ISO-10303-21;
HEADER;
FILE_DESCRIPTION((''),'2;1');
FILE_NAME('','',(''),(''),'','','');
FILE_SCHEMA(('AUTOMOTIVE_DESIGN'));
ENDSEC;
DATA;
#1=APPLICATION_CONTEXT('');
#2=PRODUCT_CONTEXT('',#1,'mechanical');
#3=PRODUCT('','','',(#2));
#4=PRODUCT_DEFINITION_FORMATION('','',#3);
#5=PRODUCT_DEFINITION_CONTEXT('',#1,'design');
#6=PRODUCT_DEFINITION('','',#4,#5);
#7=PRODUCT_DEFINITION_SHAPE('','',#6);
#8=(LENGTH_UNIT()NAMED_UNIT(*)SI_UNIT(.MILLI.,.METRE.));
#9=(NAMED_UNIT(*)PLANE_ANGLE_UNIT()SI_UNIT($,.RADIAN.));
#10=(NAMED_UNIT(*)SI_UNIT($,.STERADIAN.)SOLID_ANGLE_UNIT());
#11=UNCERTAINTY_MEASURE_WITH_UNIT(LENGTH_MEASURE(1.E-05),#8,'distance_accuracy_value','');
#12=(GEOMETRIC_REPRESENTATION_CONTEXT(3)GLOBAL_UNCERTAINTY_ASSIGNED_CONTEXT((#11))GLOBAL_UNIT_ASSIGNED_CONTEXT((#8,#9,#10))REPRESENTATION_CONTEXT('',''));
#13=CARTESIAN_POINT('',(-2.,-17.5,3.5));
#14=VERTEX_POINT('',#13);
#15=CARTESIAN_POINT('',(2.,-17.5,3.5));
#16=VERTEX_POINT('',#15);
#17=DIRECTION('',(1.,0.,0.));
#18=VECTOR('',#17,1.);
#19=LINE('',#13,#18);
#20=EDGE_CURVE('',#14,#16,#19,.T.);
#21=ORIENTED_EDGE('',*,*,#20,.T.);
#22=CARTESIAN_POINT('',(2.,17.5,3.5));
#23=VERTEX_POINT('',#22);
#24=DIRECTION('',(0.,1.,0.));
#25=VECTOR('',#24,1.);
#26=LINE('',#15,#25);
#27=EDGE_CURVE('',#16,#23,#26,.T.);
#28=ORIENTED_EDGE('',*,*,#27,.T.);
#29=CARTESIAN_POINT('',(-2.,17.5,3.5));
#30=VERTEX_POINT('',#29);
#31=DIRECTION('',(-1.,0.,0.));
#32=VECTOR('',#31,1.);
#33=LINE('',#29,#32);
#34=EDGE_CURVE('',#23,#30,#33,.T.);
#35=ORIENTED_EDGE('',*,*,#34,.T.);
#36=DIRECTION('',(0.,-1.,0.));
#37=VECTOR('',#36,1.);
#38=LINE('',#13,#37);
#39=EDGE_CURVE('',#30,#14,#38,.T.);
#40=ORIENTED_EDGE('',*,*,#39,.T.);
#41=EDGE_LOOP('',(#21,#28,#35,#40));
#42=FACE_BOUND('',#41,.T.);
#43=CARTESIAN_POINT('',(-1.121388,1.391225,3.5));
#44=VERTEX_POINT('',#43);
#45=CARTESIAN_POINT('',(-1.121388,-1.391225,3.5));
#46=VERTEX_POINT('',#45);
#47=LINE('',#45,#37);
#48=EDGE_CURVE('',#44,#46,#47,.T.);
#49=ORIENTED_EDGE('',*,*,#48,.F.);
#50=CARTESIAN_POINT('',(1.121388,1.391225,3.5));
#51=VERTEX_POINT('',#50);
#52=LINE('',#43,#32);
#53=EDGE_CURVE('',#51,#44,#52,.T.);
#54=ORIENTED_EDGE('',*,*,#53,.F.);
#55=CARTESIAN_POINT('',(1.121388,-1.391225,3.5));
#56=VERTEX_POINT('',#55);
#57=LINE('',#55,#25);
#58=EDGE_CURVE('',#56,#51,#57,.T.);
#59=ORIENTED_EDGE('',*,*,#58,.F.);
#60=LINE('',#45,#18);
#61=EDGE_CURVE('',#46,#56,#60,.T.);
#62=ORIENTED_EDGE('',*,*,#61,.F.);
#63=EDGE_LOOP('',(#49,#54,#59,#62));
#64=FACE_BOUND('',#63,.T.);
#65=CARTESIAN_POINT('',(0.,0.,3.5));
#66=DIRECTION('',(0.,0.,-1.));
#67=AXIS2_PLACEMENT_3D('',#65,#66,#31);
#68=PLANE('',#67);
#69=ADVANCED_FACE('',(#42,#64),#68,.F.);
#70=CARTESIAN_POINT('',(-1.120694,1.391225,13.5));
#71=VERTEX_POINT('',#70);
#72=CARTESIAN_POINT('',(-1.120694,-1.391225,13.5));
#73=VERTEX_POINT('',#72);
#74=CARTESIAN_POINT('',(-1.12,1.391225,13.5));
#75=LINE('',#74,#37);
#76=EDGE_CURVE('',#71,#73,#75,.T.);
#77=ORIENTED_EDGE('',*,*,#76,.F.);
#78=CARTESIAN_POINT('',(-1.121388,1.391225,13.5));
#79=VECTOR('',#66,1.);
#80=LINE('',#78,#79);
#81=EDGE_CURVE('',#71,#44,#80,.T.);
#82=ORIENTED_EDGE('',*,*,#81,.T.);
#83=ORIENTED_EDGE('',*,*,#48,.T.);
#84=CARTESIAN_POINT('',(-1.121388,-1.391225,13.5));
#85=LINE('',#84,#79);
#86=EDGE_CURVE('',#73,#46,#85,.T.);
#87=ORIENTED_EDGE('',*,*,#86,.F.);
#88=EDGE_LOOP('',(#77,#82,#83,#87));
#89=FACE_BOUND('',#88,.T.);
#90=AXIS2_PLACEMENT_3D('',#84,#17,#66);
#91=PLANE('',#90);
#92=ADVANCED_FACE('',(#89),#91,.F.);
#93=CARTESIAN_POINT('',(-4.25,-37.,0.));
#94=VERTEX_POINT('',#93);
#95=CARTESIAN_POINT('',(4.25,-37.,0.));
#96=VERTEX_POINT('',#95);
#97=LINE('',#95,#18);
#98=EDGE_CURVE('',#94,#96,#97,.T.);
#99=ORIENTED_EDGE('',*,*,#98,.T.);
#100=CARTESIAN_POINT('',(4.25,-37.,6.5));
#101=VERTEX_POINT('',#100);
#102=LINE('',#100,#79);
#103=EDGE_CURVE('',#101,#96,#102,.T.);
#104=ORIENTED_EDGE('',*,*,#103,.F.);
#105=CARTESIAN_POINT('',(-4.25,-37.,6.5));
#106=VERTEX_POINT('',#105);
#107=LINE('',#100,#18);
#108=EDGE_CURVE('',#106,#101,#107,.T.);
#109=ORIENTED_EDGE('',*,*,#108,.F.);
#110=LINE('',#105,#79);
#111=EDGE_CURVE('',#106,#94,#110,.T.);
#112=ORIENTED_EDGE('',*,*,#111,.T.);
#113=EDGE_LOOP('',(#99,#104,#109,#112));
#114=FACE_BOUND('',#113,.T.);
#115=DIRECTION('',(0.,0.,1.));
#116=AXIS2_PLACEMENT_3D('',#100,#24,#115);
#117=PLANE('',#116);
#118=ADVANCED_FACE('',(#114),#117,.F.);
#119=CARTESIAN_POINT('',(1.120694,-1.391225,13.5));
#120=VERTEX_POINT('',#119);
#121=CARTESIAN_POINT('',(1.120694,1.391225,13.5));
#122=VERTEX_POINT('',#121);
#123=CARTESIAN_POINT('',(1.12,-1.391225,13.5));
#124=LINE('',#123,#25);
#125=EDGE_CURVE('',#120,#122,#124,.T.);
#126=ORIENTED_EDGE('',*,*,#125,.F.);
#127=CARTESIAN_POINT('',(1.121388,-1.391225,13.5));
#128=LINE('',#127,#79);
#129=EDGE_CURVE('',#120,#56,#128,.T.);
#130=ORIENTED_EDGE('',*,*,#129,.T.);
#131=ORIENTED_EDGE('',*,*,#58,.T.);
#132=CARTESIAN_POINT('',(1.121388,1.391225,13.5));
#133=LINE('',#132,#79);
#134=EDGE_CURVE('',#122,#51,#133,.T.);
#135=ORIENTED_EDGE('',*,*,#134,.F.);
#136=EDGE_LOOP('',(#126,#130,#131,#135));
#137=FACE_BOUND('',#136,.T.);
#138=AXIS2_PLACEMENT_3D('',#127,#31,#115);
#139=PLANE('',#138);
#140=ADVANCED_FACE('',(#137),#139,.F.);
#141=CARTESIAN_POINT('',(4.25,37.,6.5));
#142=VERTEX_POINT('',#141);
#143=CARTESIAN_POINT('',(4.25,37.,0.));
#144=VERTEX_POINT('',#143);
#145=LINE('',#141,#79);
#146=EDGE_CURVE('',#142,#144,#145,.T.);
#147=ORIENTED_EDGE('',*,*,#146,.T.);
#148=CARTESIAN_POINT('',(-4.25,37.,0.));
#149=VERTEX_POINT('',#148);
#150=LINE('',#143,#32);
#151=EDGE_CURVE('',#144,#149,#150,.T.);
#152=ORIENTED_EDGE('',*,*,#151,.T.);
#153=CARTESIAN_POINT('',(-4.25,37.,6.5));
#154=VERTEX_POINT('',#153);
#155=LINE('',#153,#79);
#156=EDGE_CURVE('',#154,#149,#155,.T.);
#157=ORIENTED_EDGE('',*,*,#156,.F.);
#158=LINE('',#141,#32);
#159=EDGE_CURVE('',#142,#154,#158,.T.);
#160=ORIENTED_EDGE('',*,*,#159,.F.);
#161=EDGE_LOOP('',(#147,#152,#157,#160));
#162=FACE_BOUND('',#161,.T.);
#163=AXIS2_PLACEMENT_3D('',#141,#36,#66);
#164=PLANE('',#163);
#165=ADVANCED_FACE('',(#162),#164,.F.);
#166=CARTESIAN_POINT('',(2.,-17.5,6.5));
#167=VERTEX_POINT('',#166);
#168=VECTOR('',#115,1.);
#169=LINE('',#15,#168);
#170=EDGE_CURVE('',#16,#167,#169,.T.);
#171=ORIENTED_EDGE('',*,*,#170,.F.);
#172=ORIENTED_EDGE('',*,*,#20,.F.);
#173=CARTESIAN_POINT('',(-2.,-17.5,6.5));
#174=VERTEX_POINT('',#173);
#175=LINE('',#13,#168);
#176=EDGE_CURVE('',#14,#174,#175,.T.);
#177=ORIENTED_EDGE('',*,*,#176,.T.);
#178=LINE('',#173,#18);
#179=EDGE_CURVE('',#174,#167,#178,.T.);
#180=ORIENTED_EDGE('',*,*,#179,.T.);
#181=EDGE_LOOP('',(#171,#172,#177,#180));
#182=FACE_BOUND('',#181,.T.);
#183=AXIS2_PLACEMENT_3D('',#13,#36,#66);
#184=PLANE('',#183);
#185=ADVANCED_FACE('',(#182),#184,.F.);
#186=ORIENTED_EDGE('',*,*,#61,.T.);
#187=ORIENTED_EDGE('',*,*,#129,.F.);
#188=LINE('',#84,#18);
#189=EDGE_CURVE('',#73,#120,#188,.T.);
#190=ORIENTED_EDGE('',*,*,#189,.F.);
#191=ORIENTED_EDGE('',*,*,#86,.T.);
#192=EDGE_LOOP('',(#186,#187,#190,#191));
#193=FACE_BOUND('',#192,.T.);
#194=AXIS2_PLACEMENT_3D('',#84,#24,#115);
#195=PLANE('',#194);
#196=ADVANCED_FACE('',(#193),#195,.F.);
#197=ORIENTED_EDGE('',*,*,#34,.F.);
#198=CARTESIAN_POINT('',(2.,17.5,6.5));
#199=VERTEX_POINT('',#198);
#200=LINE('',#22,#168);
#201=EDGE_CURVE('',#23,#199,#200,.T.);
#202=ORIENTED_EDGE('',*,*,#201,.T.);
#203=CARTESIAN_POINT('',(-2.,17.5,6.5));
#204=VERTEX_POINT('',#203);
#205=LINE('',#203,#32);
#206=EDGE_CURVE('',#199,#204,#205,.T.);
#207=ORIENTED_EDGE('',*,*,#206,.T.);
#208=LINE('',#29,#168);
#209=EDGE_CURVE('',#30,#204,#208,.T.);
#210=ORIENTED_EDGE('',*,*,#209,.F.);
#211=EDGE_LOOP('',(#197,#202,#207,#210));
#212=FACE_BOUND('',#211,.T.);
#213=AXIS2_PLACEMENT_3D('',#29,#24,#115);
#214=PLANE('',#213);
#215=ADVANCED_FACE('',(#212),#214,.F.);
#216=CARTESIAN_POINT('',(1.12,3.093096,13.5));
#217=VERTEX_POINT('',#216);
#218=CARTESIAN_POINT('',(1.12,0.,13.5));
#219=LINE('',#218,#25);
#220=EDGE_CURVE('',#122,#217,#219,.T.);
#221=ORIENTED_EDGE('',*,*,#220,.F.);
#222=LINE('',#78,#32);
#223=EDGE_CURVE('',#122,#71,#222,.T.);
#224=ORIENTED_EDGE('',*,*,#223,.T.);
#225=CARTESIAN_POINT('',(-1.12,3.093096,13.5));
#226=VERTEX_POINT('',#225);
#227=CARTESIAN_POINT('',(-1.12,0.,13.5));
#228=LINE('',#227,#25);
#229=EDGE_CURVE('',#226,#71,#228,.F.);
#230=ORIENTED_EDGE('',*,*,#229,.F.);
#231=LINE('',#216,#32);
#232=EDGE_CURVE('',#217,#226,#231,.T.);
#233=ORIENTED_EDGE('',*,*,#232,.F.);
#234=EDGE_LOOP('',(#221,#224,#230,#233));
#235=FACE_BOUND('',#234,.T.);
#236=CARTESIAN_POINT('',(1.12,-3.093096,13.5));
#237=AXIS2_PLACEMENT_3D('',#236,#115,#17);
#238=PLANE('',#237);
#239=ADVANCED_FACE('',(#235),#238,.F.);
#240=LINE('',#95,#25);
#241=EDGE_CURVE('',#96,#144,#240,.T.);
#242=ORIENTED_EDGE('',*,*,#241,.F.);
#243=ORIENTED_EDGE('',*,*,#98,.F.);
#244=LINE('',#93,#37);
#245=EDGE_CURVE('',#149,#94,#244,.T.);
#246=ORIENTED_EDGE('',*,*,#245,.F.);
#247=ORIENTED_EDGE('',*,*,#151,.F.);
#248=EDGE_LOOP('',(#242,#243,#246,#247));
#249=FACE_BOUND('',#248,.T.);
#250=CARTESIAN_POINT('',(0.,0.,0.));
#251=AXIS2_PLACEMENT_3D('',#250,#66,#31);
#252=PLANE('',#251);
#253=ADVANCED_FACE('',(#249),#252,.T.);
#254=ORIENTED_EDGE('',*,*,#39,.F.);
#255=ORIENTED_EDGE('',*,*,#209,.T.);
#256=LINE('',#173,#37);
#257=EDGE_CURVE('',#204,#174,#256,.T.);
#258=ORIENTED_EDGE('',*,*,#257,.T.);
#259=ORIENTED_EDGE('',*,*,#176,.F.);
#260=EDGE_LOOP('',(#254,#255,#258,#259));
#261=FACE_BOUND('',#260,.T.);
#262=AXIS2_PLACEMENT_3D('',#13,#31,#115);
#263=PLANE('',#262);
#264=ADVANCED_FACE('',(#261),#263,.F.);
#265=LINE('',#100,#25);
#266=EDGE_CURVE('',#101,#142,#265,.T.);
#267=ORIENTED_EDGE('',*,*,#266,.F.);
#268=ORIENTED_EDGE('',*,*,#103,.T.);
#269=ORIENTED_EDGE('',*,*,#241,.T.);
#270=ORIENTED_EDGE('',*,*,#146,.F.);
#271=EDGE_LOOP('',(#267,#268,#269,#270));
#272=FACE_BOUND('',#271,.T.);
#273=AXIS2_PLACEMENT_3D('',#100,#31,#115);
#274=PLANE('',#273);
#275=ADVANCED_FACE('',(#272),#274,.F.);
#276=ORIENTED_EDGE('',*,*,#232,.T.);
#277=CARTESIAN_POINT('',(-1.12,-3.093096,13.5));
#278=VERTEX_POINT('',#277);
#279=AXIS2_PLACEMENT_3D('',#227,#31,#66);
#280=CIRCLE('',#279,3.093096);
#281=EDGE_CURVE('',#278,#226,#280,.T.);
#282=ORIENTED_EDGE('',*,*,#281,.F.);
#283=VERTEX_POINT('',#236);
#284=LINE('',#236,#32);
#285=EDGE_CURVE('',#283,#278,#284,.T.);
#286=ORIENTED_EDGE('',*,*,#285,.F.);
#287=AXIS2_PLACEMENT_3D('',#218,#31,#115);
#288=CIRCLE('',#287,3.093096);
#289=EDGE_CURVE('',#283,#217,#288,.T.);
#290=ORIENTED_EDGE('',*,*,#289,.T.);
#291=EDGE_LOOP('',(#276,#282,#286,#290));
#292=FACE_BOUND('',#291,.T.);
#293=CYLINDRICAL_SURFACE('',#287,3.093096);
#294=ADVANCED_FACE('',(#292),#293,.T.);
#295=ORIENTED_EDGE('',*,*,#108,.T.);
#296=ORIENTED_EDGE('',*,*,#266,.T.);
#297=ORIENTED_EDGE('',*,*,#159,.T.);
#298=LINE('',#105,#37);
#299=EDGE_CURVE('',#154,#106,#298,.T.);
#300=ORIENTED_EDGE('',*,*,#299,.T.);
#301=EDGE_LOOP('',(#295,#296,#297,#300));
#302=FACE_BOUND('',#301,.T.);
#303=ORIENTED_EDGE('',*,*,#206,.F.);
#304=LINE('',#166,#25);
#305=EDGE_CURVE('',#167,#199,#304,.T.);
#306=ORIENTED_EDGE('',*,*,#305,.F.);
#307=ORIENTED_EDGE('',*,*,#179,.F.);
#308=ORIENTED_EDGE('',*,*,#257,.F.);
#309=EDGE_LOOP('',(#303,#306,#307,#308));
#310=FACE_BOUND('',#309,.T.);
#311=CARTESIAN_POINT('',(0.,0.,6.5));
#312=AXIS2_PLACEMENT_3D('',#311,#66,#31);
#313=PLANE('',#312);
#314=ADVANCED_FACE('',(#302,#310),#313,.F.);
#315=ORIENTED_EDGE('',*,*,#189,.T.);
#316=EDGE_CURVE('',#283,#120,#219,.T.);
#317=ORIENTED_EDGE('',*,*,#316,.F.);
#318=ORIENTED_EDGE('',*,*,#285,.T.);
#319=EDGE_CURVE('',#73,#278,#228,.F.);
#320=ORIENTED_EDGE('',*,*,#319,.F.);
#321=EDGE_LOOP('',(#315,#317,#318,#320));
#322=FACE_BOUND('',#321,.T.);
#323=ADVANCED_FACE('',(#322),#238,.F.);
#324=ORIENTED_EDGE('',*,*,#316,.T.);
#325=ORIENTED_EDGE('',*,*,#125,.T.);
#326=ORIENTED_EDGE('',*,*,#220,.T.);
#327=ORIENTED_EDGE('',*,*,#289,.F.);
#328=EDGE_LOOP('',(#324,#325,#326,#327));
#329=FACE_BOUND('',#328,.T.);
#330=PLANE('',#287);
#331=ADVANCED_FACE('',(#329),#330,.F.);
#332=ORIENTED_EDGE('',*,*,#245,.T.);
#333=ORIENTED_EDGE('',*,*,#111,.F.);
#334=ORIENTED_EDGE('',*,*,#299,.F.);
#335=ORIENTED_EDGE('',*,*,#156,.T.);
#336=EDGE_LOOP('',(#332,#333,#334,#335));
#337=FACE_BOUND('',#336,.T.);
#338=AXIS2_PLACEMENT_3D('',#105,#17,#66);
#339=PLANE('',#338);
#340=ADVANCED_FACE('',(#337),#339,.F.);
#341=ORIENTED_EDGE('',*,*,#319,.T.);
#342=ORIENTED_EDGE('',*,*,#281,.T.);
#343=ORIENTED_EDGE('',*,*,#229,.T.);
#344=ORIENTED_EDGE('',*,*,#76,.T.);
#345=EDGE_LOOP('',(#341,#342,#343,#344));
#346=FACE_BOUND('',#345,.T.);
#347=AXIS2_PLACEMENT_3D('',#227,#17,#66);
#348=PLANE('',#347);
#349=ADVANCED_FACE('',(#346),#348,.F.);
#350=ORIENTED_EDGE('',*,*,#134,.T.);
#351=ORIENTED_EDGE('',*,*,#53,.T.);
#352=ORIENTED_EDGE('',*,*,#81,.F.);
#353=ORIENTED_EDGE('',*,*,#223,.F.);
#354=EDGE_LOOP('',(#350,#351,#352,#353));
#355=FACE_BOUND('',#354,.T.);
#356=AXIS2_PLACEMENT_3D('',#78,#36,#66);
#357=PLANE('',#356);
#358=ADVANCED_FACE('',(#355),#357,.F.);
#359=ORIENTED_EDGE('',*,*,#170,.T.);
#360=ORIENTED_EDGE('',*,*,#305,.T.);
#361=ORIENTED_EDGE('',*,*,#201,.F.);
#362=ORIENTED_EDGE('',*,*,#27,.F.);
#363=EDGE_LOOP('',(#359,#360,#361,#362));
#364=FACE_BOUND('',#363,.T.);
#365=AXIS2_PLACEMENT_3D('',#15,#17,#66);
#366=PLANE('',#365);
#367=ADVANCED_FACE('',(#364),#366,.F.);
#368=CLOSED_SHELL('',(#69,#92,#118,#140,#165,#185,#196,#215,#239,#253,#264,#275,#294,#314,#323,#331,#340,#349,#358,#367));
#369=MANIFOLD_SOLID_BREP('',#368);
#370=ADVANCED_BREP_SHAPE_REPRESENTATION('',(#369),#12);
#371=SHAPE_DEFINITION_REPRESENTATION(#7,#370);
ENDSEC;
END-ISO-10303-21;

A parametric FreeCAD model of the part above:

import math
import FreeCAD as App
import Part
import Sketcher

doc = App.newDocument("Part")
body = doc.addObject("PartDesign::Body", "Body")

sketch1 = body.newObject("Sketcher::SketchObject", "Sketch")
sketch1.AttachmentSupport = (doc.getObject("XY_Plane"), [""])
sketch1.MapMode = "FlatFace"
sketch1.addGeometry([
    Part.LineSegment(App.Vector(-4, -37, 0), App.Vector(4, -37, 0)),
    Part.LineSegment(App.Vector(4, -37, 0), App.Vector(4, 37, 0)),
    Part.LineSegment(App.Vector(4, 37, 0), App.Vector(-4, 37, 0)),
    Part.LineSegment(App.Vector(-4, 37, 0), App.Vector(-4, -37, 0)),
], False)
sketch1.addConstraint([
    Sketcher.Constraint("Coincident", 0, 2, 1, 1),
    Sketcher.Constraint("Coincident", 1, 2, 2, 1),
    Sketcher.Constraint("Coincident", 2, 2, 3, 1),
    Sketcher.Constraint("Coincident", 3, 2, 0, 1),
    Sketcher.Constraint("Horizontal", 0),
    Sketcher.Constraint("Vertical", 1),
    Sketcher.Constraint("Horizontal", 2),
    Sketcher.Constraint("Vertical", 3),
    Sketcher.Constraint("Symmetric", 0, 2, 2, 2, -1, 1),
    Sketcher.Constraint("DistanceY", 1, 1, 1, 2, 74.0),
    Sketcher.Constraint("DistanceX", 0, 1, 0, 2, 8.5),
])
pad1 = body.newObject("PartDesign::Pad", "Pad")
pad1.Profile = sketch1
pad1.Length = 6.5

sketch2 = body.newObject("Sketcher::SketchObject", "Sketch001")
sketch2.AttachmentSupport = (doc.getObject("XY_Plane"), [""])
sketch2.MapMode = "FlatFace"
sketch2.AttachmentOffset = App.Placement(App.Vector(0, 0, 6.5), App.Rotation())
sketch2.addGeometry([
    Part.LineSegment(App.Vector(-2, 17.5, 0), App.Vector(-2, -17.5, 0)),
    Part.LineSegment(App.Vector(-2, -17.5, 0), App.Vector(2, -17.5, 0)),
    Part.LineSegment(App.Vector(2, -17.5, 0), App.Vector(2, 17.5, 0)),
    Part.LineSegment(App.Vector(2, 17.5, 0), App.Vector(-2, 17.5, 0)),
], False)
sketch2.addConstraint([
    Sketcher.Constraint("Coincident", 0, 2, 1, 1),
    Sketcher.Constraint("Coincident", 1, 2, 2, 1),
    Sketcher.Constraint("Coincident", 2, 2, 3, 1),
    Sketcher.Constraint("Coincident", 3, 2, 0, 1),
    Sketcher.Constraint("Vertical", 0),
    Sketcher.Constraint("Horizontal", 1),
    Sketcher.Constraint("Vertical", 2),
    Sketcher.Constraint("Horizontal", 3),
    Sketcher.Constraint("Symmetric", 0, 2, 2, 2, -1, 1),
    Sketcher.Constraint("DistanceX", 1, 1, 1, 2, 4.0),
    Sketcher.Constraint("DistanceY", 0, 2, 0, 1, 35.0),
])
pocket1 = body.newObject("PartDesign::Pocket", "Pocket")
pocket1.Profile = sketch2
pocket1.Length = 3

sketch3 = body.newObject("Sketcher::SketchObject", "Sketch002")
sketch3.AttachmentSupport = (doc.getObject("XY_Plane"), [""])
sketch3.MapMode = "FlatFace"
sketch3.AttachmentOffset = App.Placement(App.Vector(0, 0, 3.5), App.Rotation())
sketch3.addGeometry([
    Part.LineSegment(App.Vector(-1.1, 1.4, 0), App.Vector(-1.1, -1.4, 0)),
    Part.LineSegment(App.Vector(-1.1, -1.4, 0), App.Vector(1.1, -1.4, 0)),
    Part.LineSegment(App.Vector(1.1, -1.4, 0), App.Vector(1.1, 1.4, 0)),
    Part.LineSegment(App.Vector(1.1, 1.4, 0), App.Vector(-1.1, 1.4, 0)),
], False)
sketch3.addConstraint([
    Sketcher.Constraint("Coincident", 0, 2, 1, 1),
    Sketcher.Constraint("Coincident", 1, 2, 2, 1),
    Sketcher.Constraint("Coincident", 2, 2, 3, 1),
    Sketcher.Constraint("Coincident", 3, 2, 0, 1),
    Sketcher.Constraint("Vertical", 0),
    Sketcher.Constraint("Horizontal", 1),
    Sketcher.Constraint("Vertical", 2),
    Sketcher.Constraint("Horizontal", 3),
    Sketcher.Constraint("Symmetric", 0, 2, 2, 2, -1, 1),
    Sketcher.Constraint("DistanceY", 0, 2, 0, 1, 2.78245),
    Sketcher.Constraint("DistanceX", 1, 1, 1, 2, 2.242777),
])
pad2 = body.newObject("PartDesign::Pad", "Pad001")
pad2.Profile = sketch3
pad2.Length = 10

sketch4 = body.newObject("Sketcher::SketchObject", "Sketch003")
sketch4.AttachmentSupport = (doc.getObject("YZ_Plane"), [""])
sketch4.MapMode = "FlatFace"
sketch4.addGeometry([
    Part.LineSegment(App.Vector(-3.1, 13.5, 0), App.Vector(3.1, 13.5, 0)),
    Part.ArcOfCircle(Part.Circle(App.Vector(0, 13.5, 0), App.Vector(0, 0, 1), 3.1), math.radians(0), math.radians(180)),
], False)
sketch4.addConstraint([
    Sketcher.Constraint("Coincident", 0, 1, 1, 2),
    Sketcher.Constraint("Coincident", 1, 1, 0, 2),
    Sketcher.Constraint("Horizontal", 0),
    Sketcher.Constraint("PointOnObject", 1, 3, -2),
    Sketcher.Constraint("Horizontal", 1, 3, 0, 1),
    Sketcher.Constraint("DistanceY", -1, 1, 1, 3, 13.5),
    Sketcher.Constraint("Radius", 1, 3.093096),
])
pad3 = body.newObject("PartDesign::Pad", "Pad002")
pad3.Profile = sketch4
pad3.Length = 1.12

sketch5 = body.newObject("Sketcher::SketchObject", "Sketch004")
sketch5.AttachmentSupport = (doc.getObject("YZ_Plane"), [""])
sketch5.MapMode = "FlatFace"
sketch5.AttachmentOffset = App.Placement(App.Vector(0, 0, -1.12), App.Rotation())
sketch5.addGeometry([
    Part.LineSegment(App.Vector(3.1, 13.5, 0), App.Vector(-3.1, 13.5, 0)),
    Part.ArcOfCircle(Part.Circle(App.Vector(0, 13.5, 0), App.Vector(0, 0, 1), 3.1), math.radians(0), math.radians(180)),
], False)
sketch5.addConstraint([
    Sketcher.Constraint("Coincident", 0, 1, 1, 1),
    Sketcher.Constraint("Coincident", 1, 2, 0, 2),
    Sketcher.Constraint("Horizontal", 0),
    Sketcher.Constraint("PointOnObject", 1, 3, -2),
    Sketcher.Constraint("Horizontal", 1, 3, 0, 1),
    Sketcher.Constraint("DistanceY", -1, 1, 1, 3, 13.5),
    Sketcher.Constraint("Radius", 1, 3.093096),
])
pad4 = body.newObject("PartDesign::Pad", "Pad003")
pad4.Profile = sketch5
pad4.Length = 1.12

doc.recompute()
